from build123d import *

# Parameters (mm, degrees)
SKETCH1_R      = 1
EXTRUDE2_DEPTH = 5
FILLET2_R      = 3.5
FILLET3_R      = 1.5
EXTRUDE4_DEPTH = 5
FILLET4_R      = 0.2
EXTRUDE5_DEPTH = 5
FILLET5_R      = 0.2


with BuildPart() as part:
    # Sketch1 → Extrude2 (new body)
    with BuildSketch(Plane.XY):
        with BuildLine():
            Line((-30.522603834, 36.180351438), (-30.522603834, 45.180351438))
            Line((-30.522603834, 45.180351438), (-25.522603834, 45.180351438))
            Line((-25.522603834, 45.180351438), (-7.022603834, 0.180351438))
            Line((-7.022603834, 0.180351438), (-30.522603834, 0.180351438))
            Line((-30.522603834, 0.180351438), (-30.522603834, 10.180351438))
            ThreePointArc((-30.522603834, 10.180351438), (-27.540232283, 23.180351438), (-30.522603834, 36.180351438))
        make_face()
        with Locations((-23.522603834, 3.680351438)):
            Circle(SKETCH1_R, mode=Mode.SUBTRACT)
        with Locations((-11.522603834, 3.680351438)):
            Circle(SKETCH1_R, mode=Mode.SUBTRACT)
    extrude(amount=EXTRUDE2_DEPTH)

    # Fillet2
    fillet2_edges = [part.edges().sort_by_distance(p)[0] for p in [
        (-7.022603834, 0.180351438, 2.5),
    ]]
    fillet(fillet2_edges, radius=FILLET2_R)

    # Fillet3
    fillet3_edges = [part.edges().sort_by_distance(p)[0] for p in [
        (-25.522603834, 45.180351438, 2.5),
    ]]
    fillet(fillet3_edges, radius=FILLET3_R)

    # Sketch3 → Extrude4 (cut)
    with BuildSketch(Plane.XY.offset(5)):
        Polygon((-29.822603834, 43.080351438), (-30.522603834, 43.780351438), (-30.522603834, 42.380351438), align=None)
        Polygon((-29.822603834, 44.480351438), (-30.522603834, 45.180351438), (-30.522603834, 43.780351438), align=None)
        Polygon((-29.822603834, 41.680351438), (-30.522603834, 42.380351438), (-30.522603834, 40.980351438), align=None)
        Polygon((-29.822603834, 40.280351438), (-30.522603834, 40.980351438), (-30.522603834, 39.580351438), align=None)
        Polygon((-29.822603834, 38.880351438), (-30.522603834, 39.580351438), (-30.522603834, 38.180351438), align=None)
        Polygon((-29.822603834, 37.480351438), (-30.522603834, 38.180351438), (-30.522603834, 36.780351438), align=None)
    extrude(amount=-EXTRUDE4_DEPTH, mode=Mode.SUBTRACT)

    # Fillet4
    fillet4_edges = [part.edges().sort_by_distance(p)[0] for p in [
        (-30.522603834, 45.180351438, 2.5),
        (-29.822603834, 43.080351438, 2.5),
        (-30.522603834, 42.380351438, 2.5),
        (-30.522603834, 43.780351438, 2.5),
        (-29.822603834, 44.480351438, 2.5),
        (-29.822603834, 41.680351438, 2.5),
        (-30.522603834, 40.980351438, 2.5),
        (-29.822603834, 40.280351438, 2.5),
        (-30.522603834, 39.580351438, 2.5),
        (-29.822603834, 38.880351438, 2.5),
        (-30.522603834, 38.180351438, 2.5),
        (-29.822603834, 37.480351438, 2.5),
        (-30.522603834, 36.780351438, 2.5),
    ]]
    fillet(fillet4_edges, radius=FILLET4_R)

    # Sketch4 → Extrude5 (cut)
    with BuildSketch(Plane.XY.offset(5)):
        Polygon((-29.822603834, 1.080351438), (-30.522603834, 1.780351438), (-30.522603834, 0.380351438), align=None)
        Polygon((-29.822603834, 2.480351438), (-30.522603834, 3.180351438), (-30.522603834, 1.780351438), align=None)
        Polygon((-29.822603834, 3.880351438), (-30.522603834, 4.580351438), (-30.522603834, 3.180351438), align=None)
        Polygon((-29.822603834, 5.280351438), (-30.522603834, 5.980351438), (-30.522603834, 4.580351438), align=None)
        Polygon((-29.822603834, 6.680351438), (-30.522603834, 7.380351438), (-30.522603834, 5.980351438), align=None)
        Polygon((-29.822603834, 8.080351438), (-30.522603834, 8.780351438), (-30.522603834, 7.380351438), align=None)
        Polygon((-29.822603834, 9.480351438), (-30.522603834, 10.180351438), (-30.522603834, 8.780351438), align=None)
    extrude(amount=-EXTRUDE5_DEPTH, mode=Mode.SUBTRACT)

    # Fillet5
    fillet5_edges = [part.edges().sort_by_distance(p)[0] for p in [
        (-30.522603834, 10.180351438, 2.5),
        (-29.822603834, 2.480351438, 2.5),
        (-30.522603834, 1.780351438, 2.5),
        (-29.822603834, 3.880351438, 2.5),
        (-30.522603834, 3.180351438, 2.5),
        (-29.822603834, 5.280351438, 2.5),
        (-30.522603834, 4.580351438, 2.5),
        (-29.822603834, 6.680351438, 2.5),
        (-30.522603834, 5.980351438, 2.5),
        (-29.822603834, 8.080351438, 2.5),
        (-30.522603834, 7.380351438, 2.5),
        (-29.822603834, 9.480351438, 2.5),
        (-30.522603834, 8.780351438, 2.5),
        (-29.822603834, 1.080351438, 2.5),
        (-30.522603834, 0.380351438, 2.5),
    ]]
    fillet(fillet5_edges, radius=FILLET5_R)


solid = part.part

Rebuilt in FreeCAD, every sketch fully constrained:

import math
import FreeCAD as App
import Part
import Sketcher
from FreeCAD import Vector


def edges_at(feature, points):
    """Names of the edges that pass closest to the given points."""
    edges = feature.Shape.Edges
    near = lambda p: min(range(len(edges)), key=lambda i: edges[i].distToShape(Part.Vertex(*p))[0])
    return sorted({f"Edge{near(p) + 1}" for p in points})


def add_polygon(sketch, points):
    """Adds a closed chain of lines whose ends are joined by coincident constraints."""
    first, n = sketch.GeometryCount, len(points)
    for a, b in zip(points, points[1:] + points[:1]):
        sketch.addGeometry(Part.LineSegment(App.Vector(*a, 0), App.Vector(*b, 0)), False)
    for i in range(n):
        sketch.addConstraint(Sketcher.Constraint("Coincident", first + i, 2, first + (i + 1) % n, 1))

doc = App.newDocument("Part")
body = doc.addObject("PartDesign::Body", "Body")

# Sketch on XY plane
sketch1 = doc.addObject("Sketcher::SketchObject", "Sketch")
body.addObject(sketch1)
sketch1.AttachmentSupport = (doc.XY_Plane, [""])
sketch1.MapMode = "FlatFace"
sketch1.addGeometry([
    Part.LineSegment(Vector(-30.5, 45.2, 0), Vector(-30.5, 36.2, 0)),  # 0
    Part.ArcOfCircle(Part.Circle(Vector(-57.4, 23.2, 0), Vector(0, 0, 1), 29.8), math.radians(-26), math.radians(26)),  # 1
    Part.LineSegment(Vector(-30.5, 10.2, 0), Vector(-30.5, 0.2, 0)),  # 2
    Part.LineSegment(Vector(-30.5, 0.2, 0), Vector(-7, 0.2, 0)),  # 3
    Part.LineSegment(Vector(-7, 0.2, 0), Vector(-25.5, 45.2, 0)),  # 4
    Part.LineSegment(Vector(-25.5, 45.2, 0), Vector(-30.5, 45.2, 0)),  # 5
    Part.Circle(Vector(-11.5, 3.7, 0), Vector(0, 0, 1), 1),  # 6
    Part.Circle(Vector(-23.5, 3.7, 0), Vector(0, 0, 1), 1),  # 7
], False)
sketch1.addConstraint([
    Sketcher.Constraint("Coincident", 0, 2, 1, 2),
    Sketcher.Constraint("Coincident", 1, 1, 2, 1),
    Sketcher.Constraint("Coincident", 2, 2, 3, 1),
    Sketcher.Constraint("Coincident", 3, 2, 4, 1),
    Sketcher.Constraint("Coincident", 4, 2, 5, 1),
    Sketcher.Constraint("Coincident", 5, 2, 0, 1),
    Sketcher.Constraint("Vertical", 0),
    Sketcher.Constraint("Vertical", 2),
    Sketcher.Constraint("Horizontal", 3),
    Sketcher.Constraint("Horizontal", 5),
    Sketcher.Constraint("Equal", 6, 7),
    Sketcher.Constraint("Horizontal", 6, 3, 7, 3),
    Sketcher.Constraint("Vertical", 0, 2, 1, 1),
    Sketcher.Constraint("Diameter", 6, 2.0),
    Sketcher.Constraint("DistanceX", 5, 2, 5, 1, 5.0),
    Sketcher.Constraint("DistanceY", 0, 2, 0, 1, 9.0),
    Sketcher.Constraint("DistanceY", 2, 2, 2, 1, 10.0),
    Sketcher.Constraint("DistanceX", 3, 1, 3, 2, 23.5),
    Sketcher.Constraint("DistanceX", 7, 3, 6, 3, 12.0),
    Sketcher.Constraint("DistanceY", 1, 3, 0, 2, 13.0),
    Sketcher.Constraint("DistanceX", 0, 2, 7, 3, 7.0),
    Sketcher.Constraint("DistanceY", 6, 3, 1, 3, 19.5),
    Sketcher.Constraint("Radius", 1, 29.824342),
    Sketcher.Constraint("DistanceY", -1, 1, 1, 3, 23.180351),
    Sketcher.Constraint("DistanceX", 1, 3, -1, 1, 57.364575),
])
pad1 = doc.addObject("PartDesign::Pad", "Pad")
body.addObject(pad1)
pad1.Profile = sketch1
pad1.Length = 5
doc.recompute()

fillet = doc.addObject("PartDesign::Fillet", "Fillet")
body.addObject(fillet)
fillet.Base = (pad1, edges_at(pad1, [(-7.023, 0.18, 2.5)]))
fillet.Radius = 3.5
doc.recompute()

fillet2 = doc.addObject("PartDesign::Fillet", "Fillet001")
body.addObject(fillet2)
fillet2.Base = (fillet, edges_at(fillet, [(-25.523, 45.18, 2.5)]))
fillet2.Radius = 1.5

# Sketch on XY plane
sketch2 = doc.addObject("Sketcher::SketchObject", "Sketch001")
body.addObject(sketch2)
sketch2.AttachmentSupport = (doc.XY_Plane, [""])
sketch2.MapMode = "FlatFace"
sketch2.AttachmentOffset = App.Placement(Vector(0, 0, 5), App.Rotation())
add_polygon(sketch2, [(-29.8, 43.1), (-30.5, 43.8), (-30.5, 42.4)])  # lines 0-2
add_polygon(sketch2, [(-29.8, 44.5), (-30.5, 45.2), (-30.5, 43.8)])  # lines 3-5
add_polygon(sketch2, [(-29.8, 41.7), (-30.5, 42.4), (-30.5, 41)])  # lines 6-8
add_polygon(sketch2, [(-29.8, 40.3), (-30.5, 41), (-30.5, 39.6)])  # lines 9-11
add_polygon(sketch2, [(-29.8, 38.9), (-30.5, 39.6), (-30.5, 38.2)])  # lines 12-14
add_polygon(sketch2, [(-29.8, 37.5), (-30.5, 38.2), (-30.5, 36.8)])  # lines 15-17
sketch2.addConstraint([
    Sketcher.Constraint("Vertical", 1),
    Sketcher.Constraint("Vertical", 4),
    Sketcher.Constraint("Vertical", 7),
    Sketcher.Constraint("Vertical", 10),
    Sketcher.Constraint("Vertical", 13),
    Sketcher.Constraint("Vertical", 16),
    Sketcher.Constraint("Coincident", 4, 2, 0, 2),
    Sketcher.Constraint("Coincident", 6, 2, 1, 2),
    Sketcher.Constraint("Coincident", 9, 2, 7, 2),
    Sketcher.Constraint("Coincident", 12, 2, 10, 2),
    Sketcher.Constraint("Coincident", 15, 2, 13, 2),
    Sketcher.Constraint("Perpendicular", 0, 2),
    Sketcher.Constraint("Perpendicular", 2, 3),
    Sketcher.Constraint("Perpendicular", 3, 5),
    Sketcher.Constraint("Perpendicular", 5, 6),
    Sketcher.Constraint("Perpendicular", 6, 8),
    Sketcher.Constraint("Perpendicular", 8, 9),
    Sketcher.Constraint("Perpendicular", 9, 11),
    Sketcher.Constraint("Perpendicular", 11, 12),
    Sketcher.Constraint("Perpendicular", 12, 14),
    Sketcher.Constraint("Perpendicular", 14, 15),
    Sketcher.Constraint("Perpendicular", 15, 17),
    Sketcher.Constraint("Vertical", 2, 2, 5, 2),
    Sketcher.Constraint("Vertical", 5, 2, 8, 2),
    Sketcher.Constraint("Vertical", 8, 2, 11, 2),
    Sketcher.Constraint("Vertical", 11, 2, 14, 2),
    Sketcher.Constraint("Vertical", 14, 2, 17, 2),
    Sketcher.Constraint("Equal", 0, 2),
    Sketcher.Constraint("DistanceY", 1, 2, 1, 1, 1.4),
    Sketcher.Constraint("DistanceY", -1, 1, 0, 2, 43.780351),
    Sketcher.Constraint("DistanceX", 0, 2, -1, 1, 30.522604),
])
pocket1 = doc.addObject("PartDesign::Pocket", "Pocket")
body.addObject(pocket1)
pocket1.Profile = sketch2
pocket1.Length = 5
doc.recompute()

fillet3 = doc.addObject("PartDesign::Fillet", "Fillet002")
body.addObject(fillet3)
fillet3.Base = (pocket1, edges_at(pocket1, [
    (-30.523, 45.18, 2.5),
    (-29.823, 43.08, 2.5),
    (-30.523, 42.38, 2.5),
    (-30.523, 43.78, 2.5),
    (-29.823, 44.48, 2.5),
    (-29.823, 41.68, 2.5),
    (-30.523, 40.98, 2.5),
    (-29.823, 40.28, 2.5),
    (-30.523, 39.58, 2.5),
    (-29.823, 38.88, 2.5),
    (-30.523, 38.18, 2.5),
    (-29.823, 37.48, 2.5),
    (-30.523, 36.78, 2.5),
]))
fillet3.Radius = 0.2

# Sketch on XY plane
sketch3 = doc.addObject("Sketcher::SketchObject", "Sketch002")
body.addObject(sketch3)
sketch3.AttachmentSupport = (doc.XY_Plane, [""])
sketch3.MapMode = "FlatFace"
sketch3.AttachmentOffset = App.Placement(Vector(0, 0, 5), App.Rotation())
add_polygon(sketch3, [(-29.8, 1.1), (-30.5, 1.8), (-30.5, 0.4)])  # lines 0-2
add_polygon(sketch3, [(-29.8, 2.5), (-30.5, 3.2), (-30.5, 1.8)])  # lines 3-5
add_polygon(sketch3, [(-29.8, 3.9), (-30.5, 4.6), (-30.5, 3.2)])  # lines 6-8
add_polygon(sketch3, [(-29.8, 5.3), (-30.5, 6), (-30.5, 4.6)])  # lines 9-11
add_polygon(sketch3, [(-29.8, 6.7), (-30.5, 7.4), (-30.5, 6)])  # lines 12-14
add_polygon(sketch3, [(-29.8, 8.1), (-30.5, 8.8), (-30.5, 7.4)])  # lines 15-17
add_polygon(sketch3, [(-29.8, 9.5), (-30.5, 10.2), (-30.5, 8.8)])  # lines 18-20
sketch3.addConstraint([
    Sketcher.Constraint("Vertical", 1),
    Sketcher.Constraint("Vertical", 4),
    Sketcher.Constraint("Vertical", 7),
    Sketcher.Constraint("Vertical", 10),
    Sketcher.Constraint("Vertical", 13),
    Sketcher.Constraint("Vertical", 16),
    Sketcher.Constraint("Vertical", 19),
    Sketcher.Constraint("Coincident", 4, 2, 0, 2),
    Sketcher.Constraint("Coincident", 7, 2, 3, 2),
    Sketcher.Constraint("Coincident", 10, 2, 6, 2),
    Sketcher.Constraint("Coincident", 13, 2, 9, 2),
    Sketcher.Constraint("Coincident", 16, 2, 12, 2),
    Sketcher.Constraint("Coincident", 19, 2, 15, 2),
    Sketcher.Constraint("Perpendicular", 0, 2),
    Sketcher.Constraint("Perpendicular", 2, 3),
    Sketcher.Constraint("Perpendicular", 3, 5),
    Sketcher.Constraint("Perpendicular", 5, 6),
    Sketcher.Constraint("Perpendicular", 6, 8),
    Sketcher.Constraint("Perpendicular", 8, 9),
    Sketcher.Constraint("Perpendicular", 9, 11),
    Sketcher.Constraint("Perpendicular", 11, 12),
    Sketcher.Constraint("Perpendicular", 12, 14),
    Sketcher.Constraint("Perpendicular", 14, 15),
    Sketcher.Constraint("Perpendicular", 15, 17),
    Sketcher.Constraint("Perpendicular", 17, 18),
    Sketcher.Constraint("Perpendicular", 18, 20),
    Sketcher.Constraint("Vertical", 2, 2, 5, 2),
    Sketcher.Constraint("Vertical", 5, 2, 8, 2),
    Sketcher.Constraint("Vertical", 8, 2, 11, 2),
    Sketcher.Constraint("Vertical", 11, 2, 14, 2),
    Sketcher.Constraint("Vertical", 14, 2, 17, 2),
    Sketcher.Constraint("Vertical", 17, 2, 20, 2),
    Sketcher.Constraint("Equal", 0, 2),
    Sketcher.Constraint("DistanceY", 1, 2, 1, 1, 1.4),
    Sketcher.Constraint("DistanceY", -1, 1, 0, 2, 1.780351),
    Sketcher.Constraint("DistanceX", 0, 2, -1, 1, 30.522604),
])
pocket2 = doc.addObject("PartDesign::Pocket", "Pocket001")
body.addObject(pocket2)
pocket2.Profile = sketch3
pocket2.Length = 5
doc.recompute()

fillet4 = doc.addObject("PartDesign::Fillet", "Fillet003")
body.addObject(fillet4)
fillet4.Base = (pocket2, edges_at(pocket2, [
    (-30.523, 10.18, 2.5),
    (-29.823, 2.48, 2.5),
    (-30.523, 1.78, 2.5),
    (-29.823, 3.88, 2.5),
    (-30.523, 3.18, 2.5),
    (-29.823, 5.28, 2.5),
    (-30.523, 4.58, 2.5),
    (-29.823, 6.68, 2.5),
    (-30.523, 5.98, 2.5),
    (-29.823, 8.08, 2.5),
    (-30.523, 7.38, 2.5),
    (-29.823, 9.48, 2.5),
    (-30.523, 8.78, 2.5),
    (-29.823, 1.08, 2.5),
    (-30.523, 0.38, 2.5),
]))
fillet4.Radius = 0.2

doc.recompute()
